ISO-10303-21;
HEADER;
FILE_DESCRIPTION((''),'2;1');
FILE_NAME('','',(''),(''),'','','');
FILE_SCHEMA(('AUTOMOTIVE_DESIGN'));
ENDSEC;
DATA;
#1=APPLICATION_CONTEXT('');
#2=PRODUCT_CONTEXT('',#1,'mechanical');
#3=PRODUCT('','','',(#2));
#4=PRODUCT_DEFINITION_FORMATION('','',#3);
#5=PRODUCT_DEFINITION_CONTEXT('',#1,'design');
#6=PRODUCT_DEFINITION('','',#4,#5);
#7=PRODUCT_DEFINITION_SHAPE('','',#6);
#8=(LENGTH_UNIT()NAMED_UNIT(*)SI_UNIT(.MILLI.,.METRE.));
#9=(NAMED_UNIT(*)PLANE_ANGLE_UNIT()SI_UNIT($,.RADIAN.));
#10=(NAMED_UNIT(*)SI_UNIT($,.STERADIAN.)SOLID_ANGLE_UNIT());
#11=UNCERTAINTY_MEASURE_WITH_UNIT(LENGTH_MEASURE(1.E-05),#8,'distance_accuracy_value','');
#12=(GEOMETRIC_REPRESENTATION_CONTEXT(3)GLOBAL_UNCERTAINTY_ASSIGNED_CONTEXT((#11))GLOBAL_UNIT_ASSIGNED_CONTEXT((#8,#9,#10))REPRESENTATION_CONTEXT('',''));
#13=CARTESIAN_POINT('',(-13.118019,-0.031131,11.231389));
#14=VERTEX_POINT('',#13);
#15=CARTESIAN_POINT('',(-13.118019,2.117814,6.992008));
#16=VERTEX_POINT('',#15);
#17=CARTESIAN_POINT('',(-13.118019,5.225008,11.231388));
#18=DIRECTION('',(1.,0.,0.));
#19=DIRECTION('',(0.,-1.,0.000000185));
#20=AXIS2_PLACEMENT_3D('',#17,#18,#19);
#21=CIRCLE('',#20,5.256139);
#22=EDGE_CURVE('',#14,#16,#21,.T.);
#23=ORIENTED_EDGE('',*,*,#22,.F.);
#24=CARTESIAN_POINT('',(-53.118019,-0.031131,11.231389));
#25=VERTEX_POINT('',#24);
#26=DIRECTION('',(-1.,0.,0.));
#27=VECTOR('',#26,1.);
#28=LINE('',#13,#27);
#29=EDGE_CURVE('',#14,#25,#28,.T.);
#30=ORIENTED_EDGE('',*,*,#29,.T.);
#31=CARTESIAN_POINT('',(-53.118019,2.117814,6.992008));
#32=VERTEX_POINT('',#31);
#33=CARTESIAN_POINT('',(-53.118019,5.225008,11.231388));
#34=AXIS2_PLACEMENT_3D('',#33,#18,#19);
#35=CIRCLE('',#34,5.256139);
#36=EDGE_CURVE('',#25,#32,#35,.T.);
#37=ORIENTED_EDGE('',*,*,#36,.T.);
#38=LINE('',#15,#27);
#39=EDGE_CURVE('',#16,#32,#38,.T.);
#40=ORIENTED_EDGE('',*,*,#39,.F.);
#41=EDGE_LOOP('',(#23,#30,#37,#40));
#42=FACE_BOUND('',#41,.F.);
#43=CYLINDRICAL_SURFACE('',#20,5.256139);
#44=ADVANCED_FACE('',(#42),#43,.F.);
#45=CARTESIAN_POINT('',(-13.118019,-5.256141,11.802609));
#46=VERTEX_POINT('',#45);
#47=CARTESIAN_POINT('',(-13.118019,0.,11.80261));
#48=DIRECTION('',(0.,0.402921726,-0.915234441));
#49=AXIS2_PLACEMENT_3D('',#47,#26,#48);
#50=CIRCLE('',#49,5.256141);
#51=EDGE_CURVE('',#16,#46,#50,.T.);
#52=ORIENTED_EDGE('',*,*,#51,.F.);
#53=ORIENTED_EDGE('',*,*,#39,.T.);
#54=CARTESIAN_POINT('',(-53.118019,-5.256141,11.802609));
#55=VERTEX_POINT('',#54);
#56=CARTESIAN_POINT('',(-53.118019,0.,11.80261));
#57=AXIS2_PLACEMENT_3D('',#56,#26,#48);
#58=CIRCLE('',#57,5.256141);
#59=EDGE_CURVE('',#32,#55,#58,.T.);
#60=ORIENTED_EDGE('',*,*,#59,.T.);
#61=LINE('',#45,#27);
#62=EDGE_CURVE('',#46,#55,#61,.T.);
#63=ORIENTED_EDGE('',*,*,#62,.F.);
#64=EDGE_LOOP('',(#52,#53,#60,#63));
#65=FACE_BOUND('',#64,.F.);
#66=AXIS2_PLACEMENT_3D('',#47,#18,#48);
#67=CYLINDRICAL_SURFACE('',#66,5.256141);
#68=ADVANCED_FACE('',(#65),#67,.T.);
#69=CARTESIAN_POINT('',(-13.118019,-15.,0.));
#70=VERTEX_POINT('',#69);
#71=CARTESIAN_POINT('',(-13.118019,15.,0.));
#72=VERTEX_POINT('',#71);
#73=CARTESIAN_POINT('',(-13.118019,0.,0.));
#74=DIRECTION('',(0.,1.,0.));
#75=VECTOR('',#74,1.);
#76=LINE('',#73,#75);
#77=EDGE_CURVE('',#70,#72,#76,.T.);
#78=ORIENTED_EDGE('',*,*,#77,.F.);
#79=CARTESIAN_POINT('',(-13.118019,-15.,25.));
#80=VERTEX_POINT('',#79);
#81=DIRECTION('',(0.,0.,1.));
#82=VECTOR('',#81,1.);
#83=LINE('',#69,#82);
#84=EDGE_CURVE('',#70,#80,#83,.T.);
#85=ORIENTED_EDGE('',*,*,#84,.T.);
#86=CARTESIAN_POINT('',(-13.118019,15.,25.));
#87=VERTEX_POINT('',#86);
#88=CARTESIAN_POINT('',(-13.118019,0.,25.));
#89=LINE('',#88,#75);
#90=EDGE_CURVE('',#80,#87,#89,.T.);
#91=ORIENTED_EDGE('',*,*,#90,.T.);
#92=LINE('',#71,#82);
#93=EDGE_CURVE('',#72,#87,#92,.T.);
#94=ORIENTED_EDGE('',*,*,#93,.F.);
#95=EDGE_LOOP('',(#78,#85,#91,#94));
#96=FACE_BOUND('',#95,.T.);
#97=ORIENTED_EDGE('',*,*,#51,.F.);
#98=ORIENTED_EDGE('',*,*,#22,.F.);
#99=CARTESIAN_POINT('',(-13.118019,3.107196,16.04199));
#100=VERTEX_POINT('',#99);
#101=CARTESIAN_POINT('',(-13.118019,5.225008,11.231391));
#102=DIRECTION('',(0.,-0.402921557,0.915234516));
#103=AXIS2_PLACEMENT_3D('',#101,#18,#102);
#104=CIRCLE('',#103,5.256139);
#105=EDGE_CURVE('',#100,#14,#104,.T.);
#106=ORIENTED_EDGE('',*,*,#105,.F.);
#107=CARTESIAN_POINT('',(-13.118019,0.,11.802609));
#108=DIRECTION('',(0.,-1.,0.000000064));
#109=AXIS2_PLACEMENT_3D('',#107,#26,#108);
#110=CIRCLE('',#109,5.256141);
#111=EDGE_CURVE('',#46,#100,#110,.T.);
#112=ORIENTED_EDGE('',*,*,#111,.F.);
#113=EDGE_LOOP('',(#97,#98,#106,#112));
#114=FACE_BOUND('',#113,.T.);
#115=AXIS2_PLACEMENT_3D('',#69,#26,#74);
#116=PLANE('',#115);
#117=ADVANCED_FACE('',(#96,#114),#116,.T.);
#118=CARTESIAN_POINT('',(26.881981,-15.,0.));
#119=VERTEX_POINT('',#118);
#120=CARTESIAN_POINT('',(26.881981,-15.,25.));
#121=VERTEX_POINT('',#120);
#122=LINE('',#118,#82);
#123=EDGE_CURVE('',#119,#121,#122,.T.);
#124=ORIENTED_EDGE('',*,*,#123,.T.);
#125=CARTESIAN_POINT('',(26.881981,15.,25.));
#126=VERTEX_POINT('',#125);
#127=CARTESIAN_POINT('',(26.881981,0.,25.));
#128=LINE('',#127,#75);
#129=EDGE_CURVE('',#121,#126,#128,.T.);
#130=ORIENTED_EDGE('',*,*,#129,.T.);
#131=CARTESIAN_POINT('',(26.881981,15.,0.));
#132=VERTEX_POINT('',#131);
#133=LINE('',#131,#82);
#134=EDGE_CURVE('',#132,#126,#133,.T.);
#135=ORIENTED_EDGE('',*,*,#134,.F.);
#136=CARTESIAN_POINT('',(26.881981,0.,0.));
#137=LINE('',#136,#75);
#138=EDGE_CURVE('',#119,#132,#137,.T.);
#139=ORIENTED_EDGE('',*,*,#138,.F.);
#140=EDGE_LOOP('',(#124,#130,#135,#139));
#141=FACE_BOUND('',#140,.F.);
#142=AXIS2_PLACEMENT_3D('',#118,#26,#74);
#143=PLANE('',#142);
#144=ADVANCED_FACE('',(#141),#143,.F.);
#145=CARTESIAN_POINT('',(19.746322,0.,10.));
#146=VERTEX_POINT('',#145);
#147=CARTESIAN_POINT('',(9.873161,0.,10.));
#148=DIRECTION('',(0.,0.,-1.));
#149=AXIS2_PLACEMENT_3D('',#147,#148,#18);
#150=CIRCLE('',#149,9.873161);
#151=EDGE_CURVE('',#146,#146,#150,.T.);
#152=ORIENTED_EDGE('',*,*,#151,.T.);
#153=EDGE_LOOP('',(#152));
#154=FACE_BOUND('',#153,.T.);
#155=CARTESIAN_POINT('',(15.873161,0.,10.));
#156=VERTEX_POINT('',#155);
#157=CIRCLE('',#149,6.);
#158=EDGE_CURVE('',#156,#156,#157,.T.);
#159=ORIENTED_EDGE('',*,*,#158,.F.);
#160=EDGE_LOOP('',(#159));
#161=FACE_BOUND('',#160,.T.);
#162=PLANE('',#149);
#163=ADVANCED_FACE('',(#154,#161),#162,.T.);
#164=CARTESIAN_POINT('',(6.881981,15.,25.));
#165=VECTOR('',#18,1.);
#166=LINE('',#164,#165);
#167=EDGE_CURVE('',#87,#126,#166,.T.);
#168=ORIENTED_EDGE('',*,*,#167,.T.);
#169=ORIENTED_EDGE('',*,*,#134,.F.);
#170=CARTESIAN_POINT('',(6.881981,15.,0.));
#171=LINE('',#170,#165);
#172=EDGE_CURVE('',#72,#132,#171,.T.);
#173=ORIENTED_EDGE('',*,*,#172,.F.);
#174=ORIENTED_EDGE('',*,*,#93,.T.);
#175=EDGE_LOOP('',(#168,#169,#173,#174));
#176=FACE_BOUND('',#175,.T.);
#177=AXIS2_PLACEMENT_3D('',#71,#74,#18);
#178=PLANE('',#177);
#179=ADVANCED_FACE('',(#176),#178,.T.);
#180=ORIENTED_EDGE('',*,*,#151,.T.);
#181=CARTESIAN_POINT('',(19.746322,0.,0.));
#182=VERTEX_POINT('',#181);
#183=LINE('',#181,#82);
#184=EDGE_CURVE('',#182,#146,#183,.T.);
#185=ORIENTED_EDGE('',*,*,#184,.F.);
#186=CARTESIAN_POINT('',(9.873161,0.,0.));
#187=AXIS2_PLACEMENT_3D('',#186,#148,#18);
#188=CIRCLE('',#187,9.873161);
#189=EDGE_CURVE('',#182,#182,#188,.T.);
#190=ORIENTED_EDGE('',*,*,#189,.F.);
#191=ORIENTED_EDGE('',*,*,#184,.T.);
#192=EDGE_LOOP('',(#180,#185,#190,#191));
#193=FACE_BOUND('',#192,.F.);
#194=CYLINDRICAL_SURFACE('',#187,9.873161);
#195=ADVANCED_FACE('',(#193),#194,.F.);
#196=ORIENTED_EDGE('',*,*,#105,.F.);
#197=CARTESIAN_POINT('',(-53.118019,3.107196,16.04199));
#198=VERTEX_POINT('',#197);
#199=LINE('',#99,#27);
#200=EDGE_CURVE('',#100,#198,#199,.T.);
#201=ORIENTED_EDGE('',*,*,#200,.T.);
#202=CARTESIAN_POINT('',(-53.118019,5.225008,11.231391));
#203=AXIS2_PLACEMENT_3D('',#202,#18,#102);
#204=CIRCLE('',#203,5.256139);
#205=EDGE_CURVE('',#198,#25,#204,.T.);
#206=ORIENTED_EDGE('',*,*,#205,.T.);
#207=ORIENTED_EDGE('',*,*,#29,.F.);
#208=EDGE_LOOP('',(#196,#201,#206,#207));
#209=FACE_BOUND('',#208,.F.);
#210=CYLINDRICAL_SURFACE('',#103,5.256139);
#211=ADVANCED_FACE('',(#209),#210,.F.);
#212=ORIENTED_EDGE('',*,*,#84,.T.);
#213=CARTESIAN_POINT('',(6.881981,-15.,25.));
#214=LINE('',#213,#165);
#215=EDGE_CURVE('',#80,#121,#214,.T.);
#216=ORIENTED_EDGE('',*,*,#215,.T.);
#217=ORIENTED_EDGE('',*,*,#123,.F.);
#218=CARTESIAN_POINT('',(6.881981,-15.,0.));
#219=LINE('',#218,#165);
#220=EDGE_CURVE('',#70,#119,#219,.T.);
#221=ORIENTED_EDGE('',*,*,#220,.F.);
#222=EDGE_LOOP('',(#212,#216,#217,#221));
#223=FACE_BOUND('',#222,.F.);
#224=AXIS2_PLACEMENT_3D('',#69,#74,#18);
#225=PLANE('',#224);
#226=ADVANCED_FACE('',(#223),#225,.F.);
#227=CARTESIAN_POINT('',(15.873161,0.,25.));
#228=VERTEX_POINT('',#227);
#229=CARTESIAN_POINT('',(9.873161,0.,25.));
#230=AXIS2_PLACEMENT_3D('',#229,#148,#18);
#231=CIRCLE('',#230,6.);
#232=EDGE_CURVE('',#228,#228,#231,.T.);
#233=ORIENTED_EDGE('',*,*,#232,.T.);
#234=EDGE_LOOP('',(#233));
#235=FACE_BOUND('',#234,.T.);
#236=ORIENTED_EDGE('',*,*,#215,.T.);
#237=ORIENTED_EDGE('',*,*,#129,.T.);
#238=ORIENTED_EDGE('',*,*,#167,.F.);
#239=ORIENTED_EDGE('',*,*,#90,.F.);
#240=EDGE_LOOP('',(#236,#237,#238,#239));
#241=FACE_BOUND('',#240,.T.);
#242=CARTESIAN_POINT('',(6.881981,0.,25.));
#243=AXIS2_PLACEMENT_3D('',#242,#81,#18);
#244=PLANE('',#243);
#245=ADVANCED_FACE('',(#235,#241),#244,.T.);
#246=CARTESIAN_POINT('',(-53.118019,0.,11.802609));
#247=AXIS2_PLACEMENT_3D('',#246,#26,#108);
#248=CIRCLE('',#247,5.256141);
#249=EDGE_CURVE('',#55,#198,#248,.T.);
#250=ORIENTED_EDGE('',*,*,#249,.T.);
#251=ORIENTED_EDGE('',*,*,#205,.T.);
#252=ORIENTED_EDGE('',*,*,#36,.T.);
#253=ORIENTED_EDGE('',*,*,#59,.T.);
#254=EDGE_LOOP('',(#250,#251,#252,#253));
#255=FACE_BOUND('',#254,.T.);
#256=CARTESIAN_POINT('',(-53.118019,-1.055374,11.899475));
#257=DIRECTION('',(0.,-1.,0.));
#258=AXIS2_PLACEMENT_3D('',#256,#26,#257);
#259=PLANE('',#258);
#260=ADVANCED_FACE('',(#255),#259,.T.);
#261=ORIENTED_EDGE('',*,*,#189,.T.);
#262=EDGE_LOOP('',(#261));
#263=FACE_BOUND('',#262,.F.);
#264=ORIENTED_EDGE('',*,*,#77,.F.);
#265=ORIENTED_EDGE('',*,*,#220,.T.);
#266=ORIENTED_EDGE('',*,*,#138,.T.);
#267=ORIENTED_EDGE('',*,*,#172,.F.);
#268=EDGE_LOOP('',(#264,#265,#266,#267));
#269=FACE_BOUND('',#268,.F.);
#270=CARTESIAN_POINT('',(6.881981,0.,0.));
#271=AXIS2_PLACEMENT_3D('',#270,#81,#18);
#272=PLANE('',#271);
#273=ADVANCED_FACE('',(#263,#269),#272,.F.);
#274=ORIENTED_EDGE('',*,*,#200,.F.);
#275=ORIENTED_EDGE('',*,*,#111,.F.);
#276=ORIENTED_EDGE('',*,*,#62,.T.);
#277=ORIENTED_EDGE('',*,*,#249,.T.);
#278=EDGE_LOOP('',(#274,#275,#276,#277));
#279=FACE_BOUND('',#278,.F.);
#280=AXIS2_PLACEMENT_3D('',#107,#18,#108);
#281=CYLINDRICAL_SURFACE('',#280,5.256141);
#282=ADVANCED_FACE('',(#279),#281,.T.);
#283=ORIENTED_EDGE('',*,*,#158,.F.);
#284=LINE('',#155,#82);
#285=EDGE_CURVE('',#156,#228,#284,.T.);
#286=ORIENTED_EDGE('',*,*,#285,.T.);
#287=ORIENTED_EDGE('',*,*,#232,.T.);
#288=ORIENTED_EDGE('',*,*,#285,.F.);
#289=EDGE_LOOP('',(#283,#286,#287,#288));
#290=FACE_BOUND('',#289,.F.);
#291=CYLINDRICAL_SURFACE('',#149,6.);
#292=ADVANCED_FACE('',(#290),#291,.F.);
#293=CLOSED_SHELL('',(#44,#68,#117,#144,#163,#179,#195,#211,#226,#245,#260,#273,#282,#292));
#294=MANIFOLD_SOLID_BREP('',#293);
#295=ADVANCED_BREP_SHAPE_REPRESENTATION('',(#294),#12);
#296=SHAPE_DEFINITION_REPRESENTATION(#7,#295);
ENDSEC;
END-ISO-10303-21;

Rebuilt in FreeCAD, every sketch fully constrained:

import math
import FreeCAD as App
import Part
import Sketcher
Q = App.Units.Quantity


def add_polygon(sketch, points):
    """Adds a closed chain of lines whose ends are joined by coincident constraints."""
    first, n = sketch.GeometryCount, len(points)
    for a, b in zip(points, points[1:] + points[:1]):
        sketch.addGeometry(Part.LineSegment(App.Vector(*a, 0), App.Vector(*b, 0)), False)
    for i in range(n):
        sketch.addConstraint(Sketcher.Constraint("Coincident", first + i, 2, first + (i + 1) % n, 1))

doc = App.newDocument("Part")
body = doc.addObject("PartDesign::Body", "Body")

# Sketch on XY plane
sketch1 = body.newObject("Sketcher::SketchObject", "Sketch")
sketch1.AttachmentSupport = (doc.getObject("XY_Plane"), [""])
sketch1.MapMode = "FlatFace"
add_polygon(sketch1, [(-13, 15), (-13, -15), (27, -15), (27, 15)])  # lines 0-3
sketch1.addConstraint([
    Sketcher.Constraint("Vertical", 0),
    Sketcher.Constraint("Horizontal", 1),
    Sketcher.Constraint("Vertical", 2),
    Sketcher.Constraint("Horizontal", 3),
    Sketcher.Constraint("DistanceX", 1, 1, 1, 2, Q("40 mm")),
    Sketcher.Constraint("DistanceY", 0, 2, 0, 1, Q("30 mm")),
    Sketcher.Constraint("DistanceY", 0, 2, -1, 1, Q("15 mm")),
    Sketcher.Constraint("DistanceX", 0, 2, -1, 1, Q("13.118019 mm")),
])
pad1 = body.newObject("PartDesign::Pad", "Pad")
pad1.Profile = sketch1
pad1.Length = 25

# Sketch on XY plane
sketch2 = body.newObject("Sketcher::SketchObject", "Sketch001")
sketch2.AttachmentSupport = (doc.getObject("XY_Plane"), [""])
sketch2.MapMode = "FlatFace"
sketch2.addGeometry(Part.Circle(App.Vector(10, 0, 0), App.Vector(0, 0, 1), 10), False)
sketch2.addConstraint([
    Sketcher.Constraint("PointOnObject", 0, 3, -1),
    Sketcher.Constraint("Diameter", 0, Q("19.746322 mm")),
    Sketcher.Constraint("DistanceX", -1, 1, 0, 3, Q("9.873161 mm")),
])
pocket1 = body.newObject("PartDesign::Pocket", "Pocket")
pocket1.Profile = sketch2
pocket1.Length = 10
pocket1.Reversed = True

# Sketch on XY plane
sketch3 = body.newObject("Sketcher::SketchObject", "Sketch002")
sketch3.AttachmentSupport = (doc.getObject("XY_Plane"), [""])
sketch3.MapMode = "FlatFace"
sketch3.AttachmentOffset = App.Placement(App.Vector(0, 0, 10), App.Rotation())
sketch3.addGeometry(Part.Circle(App.Vector(10, 0, 0), App.Vector(0, 0, 1), 6), False)
sketch3.addConstraint([
    Sketcher.Constraint("PointOnObject", 0, 3, -1),
    Sketcher.Constraint("Diameter", 0, Q("12 mm")),
    Sketcher.Constraint("DistanceX", -1, 1, 0, 3, Q("9.873161 mm")),
])
pocket2 = body.newObject("PartDesign::Pocket", "Pocket001")
pocket2.Profile = sketch3
pocket2.Length = 25
pocket2.Reversed = True

# Sketch on YZ plane
sketch4 = body.newObject("Sketcher::SketchObject", "Sketch003")
sketch4.AttachmentSupport = (doc.getObject("YZ_Plane"), [""])
sketch4.MapMode = "FlatFace"
sketch4.AttachmentOffset = App.Placement(App.Vector(0, 0, -13.118019), App.Rotation())
sketch4.addGeometry([
    Part.ArcOfCircle(Part.Circle(App.Vector(0, 11.8, 0), App.Vector(0, 0, 1), 5.3), math.radians(-180), math.radians(-66)),
    Part.ArcOfCircle(Part.Circle(App.Vector(0, 11.8, 0), App.Vector(0, 0, 1), 5.3), math.radians(54), math.radians(180)),
    Part.ArcOfCircle(Part.Circle(App.Vector(5.2, 11.2, 0), App.Vector(0, 0, 1), 5.3), math.radians(114), math.radians(180)),
    Part.ArcOfCircle(Part.Circle(App.Vector(5.2, 11.2, 0), App.Vector(0, 0, 1), 5.3), math.radians(180), math.radians(234)),
], False)
sketch4.addConstraint([
    Sketcher.Constraint("Tangent", 0, 1, 1, 2),
    Sketcher.Constraint("Coincident", 1, 1, 2, 1),
    Sketcher.Constraint("Tangent", 2, 2, 3, 1),
    Sketcher.Constraint("Coincident", 3, 2, 0, 2),
    Sketcher.Constraint("Equal", 0, 1),
    Sketcher.Constraint("Equal", 2, 3),
    Sketcher.Constraint("PointOnObject", 0, 3, -2),
    Sketcher.Constraint("Horizontal", 1, 3, 0, 1),
    Sketcher.Constraint("Horizontal", 3, 3, 2, 2),
    Sketcher.Constraint("Radius", 0, Q("5.256141 mm")),
    Sketcher.Constraint("Radius", 2, Q("5.256139 mm")),
    Sketcher.Constraint("DistanceY", 2, 3, 1, 1, Q("4.810599 mm")),
    Sketcher.Constraint("DistanceY", -1, 1, 0, 3, Q("11.80261 mm")),
    Sketcher.Constraint("DistanceY", -1, 1, 2, 3, Q("11.231391 mm")),
])
pad2 = body.newObject("PartDesign::Pad", "Pad001")
pad2.Profile = sketch4
pad2.Length = 40
pad2.Reversed = True

doc.recompute()
